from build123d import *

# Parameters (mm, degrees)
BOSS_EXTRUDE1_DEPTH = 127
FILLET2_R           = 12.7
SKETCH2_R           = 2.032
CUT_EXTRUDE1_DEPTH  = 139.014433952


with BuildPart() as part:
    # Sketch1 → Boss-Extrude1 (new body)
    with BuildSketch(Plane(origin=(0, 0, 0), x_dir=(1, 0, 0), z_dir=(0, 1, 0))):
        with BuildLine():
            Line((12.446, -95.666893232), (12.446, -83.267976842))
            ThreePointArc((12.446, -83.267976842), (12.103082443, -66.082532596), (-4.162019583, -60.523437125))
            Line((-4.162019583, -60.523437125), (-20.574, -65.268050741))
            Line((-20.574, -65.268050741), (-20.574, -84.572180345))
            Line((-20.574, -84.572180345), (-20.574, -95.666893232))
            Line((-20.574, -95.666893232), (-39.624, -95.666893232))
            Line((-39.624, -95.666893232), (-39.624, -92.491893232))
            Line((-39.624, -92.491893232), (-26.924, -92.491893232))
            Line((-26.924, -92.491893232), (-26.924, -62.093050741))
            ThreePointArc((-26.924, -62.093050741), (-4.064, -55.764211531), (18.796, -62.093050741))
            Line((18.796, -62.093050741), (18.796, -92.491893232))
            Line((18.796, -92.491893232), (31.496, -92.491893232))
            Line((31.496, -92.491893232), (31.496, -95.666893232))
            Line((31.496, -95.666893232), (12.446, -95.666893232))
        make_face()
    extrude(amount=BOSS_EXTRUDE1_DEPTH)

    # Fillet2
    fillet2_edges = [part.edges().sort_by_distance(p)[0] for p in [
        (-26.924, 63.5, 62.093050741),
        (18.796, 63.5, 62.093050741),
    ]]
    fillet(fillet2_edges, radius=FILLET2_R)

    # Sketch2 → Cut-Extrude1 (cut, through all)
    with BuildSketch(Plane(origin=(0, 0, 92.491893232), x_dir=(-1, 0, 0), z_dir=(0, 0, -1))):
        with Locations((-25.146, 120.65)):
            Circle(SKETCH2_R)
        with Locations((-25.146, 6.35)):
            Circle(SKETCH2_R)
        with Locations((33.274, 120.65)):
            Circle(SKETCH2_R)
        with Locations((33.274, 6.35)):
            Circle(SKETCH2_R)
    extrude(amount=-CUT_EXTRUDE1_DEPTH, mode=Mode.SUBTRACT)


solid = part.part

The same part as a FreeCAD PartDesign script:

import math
import FreeCAD as App
import Part
import Sketcher
from FreeCAD import Vector
Q = App.Units.Quantity


def edges_at(feature, points):
    """Names of the edges that pass closest to the given points."""
    edges = feature.Shape.Edges
    near = lambda p: min(range(len(edges)), key=lambda i: edges[i].distToShape(Part.Vertex(*p))[0])
    return sorted({f"Edge{near(p) + 1}" for p in points})

doc = App.newDocument("Part")
body = doc.addObject("PartDesign::Body", "Body")

sketch1 = body.newObject("Sketcher::SketchObject", "Sketch")
sketch1.AttachmentSupport = (doc.getObject("XZ_Plane"), [""])
sketch1.MapMode = "FlatFace"
sketch1.addGeometry([
    Part.LineSegment(Vector(12.4, 83.3, 0), Vector(12.4, 95.7, 0)),
    Part.LineSegment(Vector(12.4, 95.7, 0), Vector(31.5, 95.7, 0)),
    Part.LineSegment(Vector(31.5, 95.7, 0), Vector(31.5, 92.5, 0)),
    Part.LineSegment(Vector(31.5, 92.5, 0), Vector(18.8, 92.5, 0)),
    Part.LineSegment(Vector(18.8, 92.5, 0), Vector(18.8, 62.1, 0)),
    Part.ArcOfCircle(Part.Circle(Vector(-4.1, 100.2, 0), Vector(0, 0, 1), 44.4), math.radians(-121), math.radians(-59)),
    Part.LineSegment(Vector(-26.9, 62.1, 0), Vector(-26.9, 92.5, 0)),
    Part.LineSegment(Vector(-26.9, 92.5, 0), Vector(-39.6, 92.5, 0)),
    Part.LineSegment(Vector(-39.6, 92.5, 0), Vector(-39.6, 95.7, 0)),
    Part.LineSegment(Vector(-39.6, 95.7, 0), Vector(-20.6, 95.7, 0)),
    Part.LineSegment(Vector(-20.6, 95.7, 0), Vector(-20.6, 65.3, 0)),
    Part.LineSegment(Vector(-20.6, 65.3, 0), Vector(-4.2, 60.5, 0)),
    Part.ArcOfCircle(Part.Circle(Vector(0, 74.9, 0), Vector(0, 0, 1), 15), math.radians(-106), math.radians(34)),
], False)
sketch1.addConstraint([
    Sketcher.Constraint("Coincident", 0, 2, 1, 1),
    Sketcher.Constraint("Coincident", 1, 2, 2, 1),
    Sketcher.Constraint("Coincident", 2, 2, 3, 1),
    Sketcher.Constraint("Coincident", 3, 2, 4, 1),
    Sketcher.Constraint("Coincident", 4, 2, 5, 2),
    Sketcher.Constraint("Coincident", 5, 1, 6, 1),
    Sketcher.Constraint("Coincident", 6, 2, 7, 1),
    Sketcher.Constraint("Coincident", 7, 2, 8, 1),
    Sketcher.Constraint("Coincident", 8, 2, 9, 1),
    Sketcher.Constraint("Coincident", 9, 2, 10, 1),
    Sketcher.Constraint("Coincident", 10, 2, 11, 1),
    Sketcher.Constraint("Tangent", 11, 2, 12, 1),
    Sketcher.Constraint("Coincident", 12, 2, 0, 1),
    Sketcher.Constraint("Vertical", 0),
    Sketcher.Constraint("Horizontal", 1),
    Sketcher.Constraint("Vertical", 2),
    Sketcher.Constraint("Horizontal", 3),
    Sketcher.Constraint("Vertical", 4),
    Sketcher.Constraint("Vertical", 6),
    Sketcher.Constraint("Horizontal", 7),
    Sketcher.Constraint("Vertical", 8),
    Sketcher.Constraint("Horizontal", 9),
    Sketcher.Constraint("Vertical", 10),
    Sketcher.Constraint("PointOnObject", 12, 3, -2),
    Sketcher.Constraint("Horizontal", 4, 2, 5, 1),
    Sketcher.Constraint("Horizontal", 3, 2, 6, 2),
    Sketcher.Constraint("Horizontal", 1, 2, 8, 2),
    Sketcher.Constraint("Equal", 3, 7),
    Sketcher.Constraint("Equal", 1, 9),
    Sketcher.Constraint("Equal", 6, 10),
    Sketcher.Constraint("Radius", 5, Q("1.75 in")),
    Sketcher.Constraint("DistanceX", 3, 2, 3, 1, Q("0.5 in")),
    Sketcher.Constraint("DistanceX", 1, 1, 1, 2, Q("0.75 in")),
    Sketcher.Constraint("DistanceX", 5, 3, 1, 2, Q("1.4 in")),
    Sketcher.Constraint("DistanceY", 2, 2, 2, 1, Q("0.125 in")),
    Sketcher.Constraint("DistanceX", 5, 3, -1, 1, Q("0.16 in")),
    Sketcher.Constraint("Radius", 12, 14.986281),
    Sketcher.Constraint("Distance", 11, Q("0.6726 in")),
    Sketcher.Constraint("DistanceY", 0, 1, 0, 2, 12.398916),
    Sketcher.Constraint("DistanceY", -1, 1, 5, 3, 100.214212),
])
pad1 = body.newObject("PartDesign::Pad", "Pad")
pad1.Profile = sketch1
pad1.Length = Q("5 in")
pad1.Reversed = True
doc.recompute()

fillet = body.newObject("PartDesign::Fillet", "Fillet")
fillet.Base = (pad1, edges_at(pad1, [(-26.924, 63.5, 62.093), (18.796, 63.5, 62.093)]))
fillet.Radius = Q("0.5 in")

sketch2 = body.newObject("Sketcher::SketchObject", "Sketch001")
sketch2.AttachmentSupport = (doc.getObject("XY_Plane"), [""])
sketch2.MapMode = "FlatFace"
sketch2.AttachmentOffset = App.Placement(Vector(0, 0, 92.491893), App.Rotation())
sketch2.addGeometry([
    Part.Circle(Vector(25.1, 120.7, 0), Vector(0, 0, 1), 2),
    Part.Circle(Vector(25.1, 6.3, 0), Vector(0, 0, 1), 2),
    Part.Circle(Vector(-33.3, 120.7, 0), Vector(0, 0, 1), 2),
    Part.Circle(Vector(-33.3, 6.3, 0), Vector(0, 0, 1), 2),
], False)
sketch2.addConstraint([
    Sketcher.Constraint("Equal", 0, 1),
    Sketcher.Constraint("Equal", 1, 2),
    Sketcher.Constraint("Equal", 2, 3),
    Sketcher.Constraint("Horizontal", 0, 3, 2, 3),
    Sketcher.Constraint("Horizontal", 1, 3, 3, 3),
    Sketcher.Constraint("Vertical", 0, 3, 1, 3),
    Sketcher.Constraint("Vertical", 2, 3, 3, 3),
    Sketcher.Constraint("Diameter", 0, Q("0.16 in")),
    Sketcher.Constraint("DistanceY", 1, 3, 0, 3, Q("4.5 in")),
    Sketcher.Constraint("DistanceX", 2, 3, 0, 3, Q("2.3 in")),
    Sketcher.Constraint("DistanceX", -1, 1, 0, 3, Q("0.99 in")),
    Sketcher.Constraint("DistanceY", -1, 1, 0, 3, Q("4.75 in")),
])
pocket1 = body.newObject("PartDesign::Pocket", "Pocket")
pocket1.Profile = sketch2
pocket1.Type = "ThroughAll"
pocket1.Reversed = True

doc.recompute()
